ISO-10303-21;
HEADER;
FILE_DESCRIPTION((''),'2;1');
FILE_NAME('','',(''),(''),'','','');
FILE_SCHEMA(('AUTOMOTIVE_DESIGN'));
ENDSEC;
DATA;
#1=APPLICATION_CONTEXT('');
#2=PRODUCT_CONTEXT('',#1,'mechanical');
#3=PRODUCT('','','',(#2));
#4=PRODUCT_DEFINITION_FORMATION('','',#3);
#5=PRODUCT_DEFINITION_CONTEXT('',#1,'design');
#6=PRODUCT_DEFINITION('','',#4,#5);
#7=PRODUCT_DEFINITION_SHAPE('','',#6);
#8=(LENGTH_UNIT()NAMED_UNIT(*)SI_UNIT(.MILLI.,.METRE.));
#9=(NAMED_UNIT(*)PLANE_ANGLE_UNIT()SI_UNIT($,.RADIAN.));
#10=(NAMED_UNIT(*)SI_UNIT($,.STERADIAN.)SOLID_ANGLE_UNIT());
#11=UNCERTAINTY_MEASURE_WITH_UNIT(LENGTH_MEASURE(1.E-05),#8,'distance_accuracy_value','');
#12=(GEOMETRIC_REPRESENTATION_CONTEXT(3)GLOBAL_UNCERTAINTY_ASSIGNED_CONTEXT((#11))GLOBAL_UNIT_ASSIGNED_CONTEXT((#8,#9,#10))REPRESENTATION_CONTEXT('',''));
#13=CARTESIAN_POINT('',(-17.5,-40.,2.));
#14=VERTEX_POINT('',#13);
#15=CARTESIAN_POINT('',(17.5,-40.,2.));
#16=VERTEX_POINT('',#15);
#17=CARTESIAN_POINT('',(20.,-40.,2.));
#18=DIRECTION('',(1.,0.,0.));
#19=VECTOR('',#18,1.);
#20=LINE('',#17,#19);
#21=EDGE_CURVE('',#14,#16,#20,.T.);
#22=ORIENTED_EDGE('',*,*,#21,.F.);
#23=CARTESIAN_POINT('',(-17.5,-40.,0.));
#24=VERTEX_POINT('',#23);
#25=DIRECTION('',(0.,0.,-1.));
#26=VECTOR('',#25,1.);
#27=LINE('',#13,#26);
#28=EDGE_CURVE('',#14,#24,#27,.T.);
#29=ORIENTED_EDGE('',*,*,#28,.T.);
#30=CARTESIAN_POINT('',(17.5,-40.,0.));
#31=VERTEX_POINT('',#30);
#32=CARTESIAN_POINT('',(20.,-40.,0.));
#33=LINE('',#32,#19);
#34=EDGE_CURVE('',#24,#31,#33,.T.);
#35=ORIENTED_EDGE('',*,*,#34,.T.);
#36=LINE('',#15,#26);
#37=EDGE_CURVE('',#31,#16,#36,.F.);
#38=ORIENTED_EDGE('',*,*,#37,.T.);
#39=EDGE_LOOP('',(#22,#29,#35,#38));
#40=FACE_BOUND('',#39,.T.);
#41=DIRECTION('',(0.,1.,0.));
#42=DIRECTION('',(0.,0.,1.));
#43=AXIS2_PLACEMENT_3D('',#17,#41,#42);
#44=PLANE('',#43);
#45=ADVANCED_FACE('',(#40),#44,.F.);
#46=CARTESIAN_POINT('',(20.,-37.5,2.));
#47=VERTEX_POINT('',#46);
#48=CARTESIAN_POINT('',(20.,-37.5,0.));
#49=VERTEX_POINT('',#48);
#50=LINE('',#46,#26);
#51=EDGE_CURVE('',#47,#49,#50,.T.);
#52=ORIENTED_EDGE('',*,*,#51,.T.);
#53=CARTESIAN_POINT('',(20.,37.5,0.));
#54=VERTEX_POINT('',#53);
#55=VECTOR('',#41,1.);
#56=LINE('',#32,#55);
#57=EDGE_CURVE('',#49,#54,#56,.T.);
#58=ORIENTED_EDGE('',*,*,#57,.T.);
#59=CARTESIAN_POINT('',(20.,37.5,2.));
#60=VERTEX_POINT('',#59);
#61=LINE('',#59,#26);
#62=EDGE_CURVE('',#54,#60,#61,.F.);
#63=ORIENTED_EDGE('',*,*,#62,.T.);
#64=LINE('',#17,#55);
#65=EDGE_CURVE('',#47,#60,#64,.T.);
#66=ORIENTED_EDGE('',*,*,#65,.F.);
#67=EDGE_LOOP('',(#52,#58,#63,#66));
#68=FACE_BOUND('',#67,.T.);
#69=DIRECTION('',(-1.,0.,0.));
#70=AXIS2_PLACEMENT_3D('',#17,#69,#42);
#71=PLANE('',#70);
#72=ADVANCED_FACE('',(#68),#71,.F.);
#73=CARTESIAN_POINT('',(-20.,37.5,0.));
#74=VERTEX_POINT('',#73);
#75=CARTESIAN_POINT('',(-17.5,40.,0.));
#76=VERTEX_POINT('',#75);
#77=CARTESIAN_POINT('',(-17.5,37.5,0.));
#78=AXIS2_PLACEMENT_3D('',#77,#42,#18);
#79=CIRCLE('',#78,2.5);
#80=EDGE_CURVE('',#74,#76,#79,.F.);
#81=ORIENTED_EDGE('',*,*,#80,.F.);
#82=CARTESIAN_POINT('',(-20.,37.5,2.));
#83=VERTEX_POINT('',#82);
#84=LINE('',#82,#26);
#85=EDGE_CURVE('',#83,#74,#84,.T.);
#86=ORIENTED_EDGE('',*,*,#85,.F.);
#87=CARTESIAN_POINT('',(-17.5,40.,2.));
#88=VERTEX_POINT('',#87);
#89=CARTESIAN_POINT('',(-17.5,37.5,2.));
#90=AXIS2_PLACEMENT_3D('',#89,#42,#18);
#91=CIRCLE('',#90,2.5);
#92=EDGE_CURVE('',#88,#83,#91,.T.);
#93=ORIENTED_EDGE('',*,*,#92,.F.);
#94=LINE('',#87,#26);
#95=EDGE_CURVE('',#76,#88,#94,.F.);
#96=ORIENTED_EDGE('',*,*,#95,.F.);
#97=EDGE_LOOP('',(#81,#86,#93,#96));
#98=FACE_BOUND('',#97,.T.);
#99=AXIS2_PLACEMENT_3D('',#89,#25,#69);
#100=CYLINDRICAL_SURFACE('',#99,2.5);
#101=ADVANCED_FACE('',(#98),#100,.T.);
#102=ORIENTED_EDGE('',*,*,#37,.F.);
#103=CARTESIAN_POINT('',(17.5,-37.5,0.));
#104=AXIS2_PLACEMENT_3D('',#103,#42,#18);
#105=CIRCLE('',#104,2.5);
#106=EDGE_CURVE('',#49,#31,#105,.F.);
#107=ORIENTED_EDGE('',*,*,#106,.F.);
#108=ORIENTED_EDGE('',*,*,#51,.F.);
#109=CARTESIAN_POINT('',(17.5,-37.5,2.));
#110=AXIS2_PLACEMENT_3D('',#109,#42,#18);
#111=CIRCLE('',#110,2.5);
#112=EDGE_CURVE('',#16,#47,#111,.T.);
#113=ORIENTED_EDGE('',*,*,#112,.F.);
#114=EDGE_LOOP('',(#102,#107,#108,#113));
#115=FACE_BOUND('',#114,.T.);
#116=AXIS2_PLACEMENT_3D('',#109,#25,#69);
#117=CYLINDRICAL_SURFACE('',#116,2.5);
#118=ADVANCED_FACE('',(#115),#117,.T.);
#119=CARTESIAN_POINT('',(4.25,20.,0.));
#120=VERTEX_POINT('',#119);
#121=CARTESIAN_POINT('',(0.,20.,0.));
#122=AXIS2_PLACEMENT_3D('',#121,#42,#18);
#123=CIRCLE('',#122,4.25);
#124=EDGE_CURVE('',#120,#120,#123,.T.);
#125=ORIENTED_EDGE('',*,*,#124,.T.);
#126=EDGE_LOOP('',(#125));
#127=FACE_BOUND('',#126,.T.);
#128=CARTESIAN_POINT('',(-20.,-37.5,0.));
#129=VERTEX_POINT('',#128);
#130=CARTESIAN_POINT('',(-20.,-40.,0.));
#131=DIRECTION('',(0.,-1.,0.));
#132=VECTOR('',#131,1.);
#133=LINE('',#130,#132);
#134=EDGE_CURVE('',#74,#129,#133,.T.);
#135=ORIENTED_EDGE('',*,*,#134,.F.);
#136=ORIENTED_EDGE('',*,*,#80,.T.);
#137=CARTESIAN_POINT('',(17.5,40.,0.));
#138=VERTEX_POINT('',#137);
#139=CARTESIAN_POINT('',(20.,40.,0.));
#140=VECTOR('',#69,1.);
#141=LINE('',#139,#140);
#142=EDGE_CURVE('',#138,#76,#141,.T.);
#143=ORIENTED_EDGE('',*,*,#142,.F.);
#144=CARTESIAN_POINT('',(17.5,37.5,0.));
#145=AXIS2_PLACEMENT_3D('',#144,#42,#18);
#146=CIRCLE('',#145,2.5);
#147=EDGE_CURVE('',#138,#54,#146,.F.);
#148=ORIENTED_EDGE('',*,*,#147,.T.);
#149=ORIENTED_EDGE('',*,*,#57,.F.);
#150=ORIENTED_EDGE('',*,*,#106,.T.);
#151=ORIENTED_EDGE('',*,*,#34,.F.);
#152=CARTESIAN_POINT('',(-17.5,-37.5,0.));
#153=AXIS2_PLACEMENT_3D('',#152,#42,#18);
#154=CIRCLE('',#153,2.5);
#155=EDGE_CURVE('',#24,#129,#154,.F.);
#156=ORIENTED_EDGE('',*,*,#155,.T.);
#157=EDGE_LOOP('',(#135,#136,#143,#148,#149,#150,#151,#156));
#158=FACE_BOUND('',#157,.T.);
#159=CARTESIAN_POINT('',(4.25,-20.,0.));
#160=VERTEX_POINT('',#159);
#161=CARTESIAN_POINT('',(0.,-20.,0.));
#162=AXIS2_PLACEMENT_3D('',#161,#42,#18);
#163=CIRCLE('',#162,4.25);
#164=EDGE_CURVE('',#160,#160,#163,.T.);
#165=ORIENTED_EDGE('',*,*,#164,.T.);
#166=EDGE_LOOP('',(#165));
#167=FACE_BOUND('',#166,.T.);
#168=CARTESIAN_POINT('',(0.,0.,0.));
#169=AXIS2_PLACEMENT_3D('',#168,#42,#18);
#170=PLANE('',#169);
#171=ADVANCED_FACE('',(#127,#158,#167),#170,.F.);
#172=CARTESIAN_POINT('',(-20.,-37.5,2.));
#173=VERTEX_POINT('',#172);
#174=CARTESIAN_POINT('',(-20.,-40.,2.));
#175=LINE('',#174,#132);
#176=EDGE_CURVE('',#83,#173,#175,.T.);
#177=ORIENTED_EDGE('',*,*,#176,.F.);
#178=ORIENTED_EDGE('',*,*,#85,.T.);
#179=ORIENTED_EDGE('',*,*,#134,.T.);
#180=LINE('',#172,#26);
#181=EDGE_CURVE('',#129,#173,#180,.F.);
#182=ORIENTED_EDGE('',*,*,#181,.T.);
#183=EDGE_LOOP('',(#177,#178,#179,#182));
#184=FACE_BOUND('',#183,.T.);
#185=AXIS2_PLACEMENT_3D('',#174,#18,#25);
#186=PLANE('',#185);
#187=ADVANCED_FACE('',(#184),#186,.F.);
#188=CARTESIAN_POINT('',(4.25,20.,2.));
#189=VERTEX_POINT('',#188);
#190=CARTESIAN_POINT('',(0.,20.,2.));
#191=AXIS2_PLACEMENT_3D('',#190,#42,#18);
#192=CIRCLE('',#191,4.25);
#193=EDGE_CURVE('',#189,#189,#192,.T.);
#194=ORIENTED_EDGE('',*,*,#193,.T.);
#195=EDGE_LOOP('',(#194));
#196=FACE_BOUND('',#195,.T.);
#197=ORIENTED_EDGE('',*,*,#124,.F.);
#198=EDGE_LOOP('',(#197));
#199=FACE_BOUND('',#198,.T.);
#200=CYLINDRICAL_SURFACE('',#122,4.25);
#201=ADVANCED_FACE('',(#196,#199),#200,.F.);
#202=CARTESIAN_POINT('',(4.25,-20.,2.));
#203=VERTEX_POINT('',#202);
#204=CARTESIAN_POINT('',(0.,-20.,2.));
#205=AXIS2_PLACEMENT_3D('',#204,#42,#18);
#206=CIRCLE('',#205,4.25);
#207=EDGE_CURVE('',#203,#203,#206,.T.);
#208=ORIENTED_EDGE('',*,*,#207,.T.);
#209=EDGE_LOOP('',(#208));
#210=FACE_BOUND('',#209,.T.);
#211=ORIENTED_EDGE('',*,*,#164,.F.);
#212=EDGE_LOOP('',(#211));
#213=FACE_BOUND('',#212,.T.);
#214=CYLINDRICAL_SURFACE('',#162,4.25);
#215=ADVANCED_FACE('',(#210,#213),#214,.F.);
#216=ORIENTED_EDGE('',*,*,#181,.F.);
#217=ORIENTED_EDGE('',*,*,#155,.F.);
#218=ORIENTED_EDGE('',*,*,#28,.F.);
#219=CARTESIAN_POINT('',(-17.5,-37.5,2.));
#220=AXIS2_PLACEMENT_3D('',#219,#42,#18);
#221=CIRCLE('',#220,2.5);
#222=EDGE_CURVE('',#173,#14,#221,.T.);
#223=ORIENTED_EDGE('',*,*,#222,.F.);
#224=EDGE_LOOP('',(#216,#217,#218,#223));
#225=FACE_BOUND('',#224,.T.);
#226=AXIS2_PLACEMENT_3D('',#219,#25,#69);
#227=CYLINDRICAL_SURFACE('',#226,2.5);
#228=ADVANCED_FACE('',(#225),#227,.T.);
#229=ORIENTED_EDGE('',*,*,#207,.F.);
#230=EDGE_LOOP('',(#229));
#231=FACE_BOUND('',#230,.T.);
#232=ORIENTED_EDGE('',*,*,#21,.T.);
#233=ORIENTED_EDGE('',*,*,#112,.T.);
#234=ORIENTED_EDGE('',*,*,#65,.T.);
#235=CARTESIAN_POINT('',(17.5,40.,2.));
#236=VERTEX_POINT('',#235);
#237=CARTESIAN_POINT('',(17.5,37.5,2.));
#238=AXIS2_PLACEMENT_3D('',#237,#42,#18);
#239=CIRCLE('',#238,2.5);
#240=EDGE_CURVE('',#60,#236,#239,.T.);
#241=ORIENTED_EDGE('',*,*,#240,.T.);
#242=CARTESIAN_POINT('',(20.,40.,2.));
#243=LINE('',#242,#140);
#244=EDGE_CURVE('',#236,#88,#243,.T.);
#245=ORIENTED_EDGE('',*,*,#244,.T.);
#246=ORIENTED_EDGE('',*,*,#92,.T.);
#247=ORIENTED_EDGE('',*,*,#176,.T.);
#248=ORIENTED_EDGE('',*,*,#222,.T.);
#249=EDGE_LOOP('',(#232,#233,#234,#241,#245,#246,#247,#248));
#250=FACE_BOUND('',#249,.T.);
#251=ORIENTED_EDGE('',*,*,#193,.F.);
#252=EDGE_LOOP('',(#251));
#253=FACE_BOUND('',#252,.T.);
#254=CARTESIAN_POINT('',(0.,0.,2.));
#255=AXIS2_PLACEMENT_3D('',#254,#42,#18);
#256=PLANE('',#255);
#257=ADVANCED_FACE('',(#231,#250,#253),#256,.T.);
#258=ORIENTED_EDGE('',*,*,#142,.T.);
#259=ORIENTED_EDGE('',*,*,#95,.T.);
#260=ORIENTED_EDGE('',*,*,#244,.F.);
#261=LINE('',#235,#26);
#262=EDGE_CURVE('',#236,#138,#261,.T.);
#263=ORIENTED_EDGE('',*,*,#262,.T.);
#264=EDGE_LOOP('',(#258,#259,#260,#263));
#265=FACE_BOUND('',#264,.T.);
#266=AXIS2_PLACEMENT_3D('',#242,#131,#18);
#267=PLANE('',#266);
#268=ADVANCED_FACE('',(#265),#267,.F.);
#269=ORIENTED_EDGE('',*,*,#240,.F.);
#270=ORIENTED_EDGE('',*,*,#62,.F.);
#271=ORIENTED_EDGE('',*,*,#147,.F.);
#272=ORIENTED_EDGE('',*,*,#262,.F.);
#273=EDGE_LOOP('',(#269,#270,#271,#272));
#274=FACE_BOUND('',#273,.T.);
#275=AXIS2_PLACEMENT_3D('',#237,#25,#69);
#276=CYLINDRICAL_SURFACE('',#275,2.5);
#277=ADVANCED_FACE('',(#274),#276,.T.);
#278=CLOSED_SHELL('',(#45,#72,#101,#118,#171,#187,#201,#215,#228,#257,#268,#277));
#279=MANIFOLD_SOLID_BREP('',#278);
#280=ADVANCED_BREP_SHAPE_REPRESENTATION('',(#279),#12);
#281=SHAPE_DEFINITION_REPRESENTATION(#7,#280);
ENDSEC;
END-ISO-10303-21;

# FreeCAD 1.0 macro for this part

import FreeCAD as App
import Part
import Sketcher
Q = App.Units.Quantity


def edges_at(feature, points):
    """Names of the edges that pass closest to the given points."""
    edges = feature.Shape.Edges
    near = lambda p: min(range(len(edges)), key=lambda i: edges[i].distToShape(Part.Vertex(*p))[0])
    return sorted({f"Edge{near(p) + 1}" for p in points})


def add_polygon(sketch, points):
    """Adds a closed chain of lines whose ends are joined by coincident constraints."""
    first, n = sketch.GeometryCount, len(points)
    for a, b in zip(points, points[1:] + points[:1]):
        sketch.addGeometry(Part.LineSegment(App.Vector(*a, 0), App.Vector(*b, 0)), False)
    for i in range(n):
        sketch.addConstraint(Sketcher.Constraint("Coincident", first + i, 2, first + (i + 1) % n, 1))

doc = App.newDocument("Part")
body = doc.addObject("PartDesign::Body", "Body")

sketch1 = doc.addObject("Sketcher::SketchObject", "Sketch")
body.addObject(sketch1)
sketch1.AttachmentSupport = (doc.XY_Plane, [""])
sketch1.MapMode = "FlatFace"
add_polygon(sketch1, [(-20, 40), (-20, -40), (20, -40), (20, 40)])
sketch1.addConstraint([
    Sketcher.Constraint("Vertical", 0),
    Sketcher.Constraint("Horizontal", 1),
    Sketcher.Constraint("Vertical", 2),
    Sketcher.Constraint("Horizontal", 3),
    Sketcher.Constraint("Symmetric", 0, 2, 2, 2, -1, 1),
    Sketcher.Constraint("DistanceX", 1, 1, 1, 2, Q("40 mm")),
    Sketcher.Constraint("DistanceY", 0, 2, 0, 1, Q("80 mm")),
])
pad1 = doc.addObject("PartDesign::Pad", "Pad")
body.addObject(pad1)
pad1.Profile = sketch1
pad1.Length = 2

sketch2 = doc.addObject("Sketcher::SketchObject", "Sketch001")
body.addObject(sketch2)
sketch2.AttachmentSupport = (doc.XY_Plane, [""])
sketch2.MapMode = "FlatFace"
sketch2.AttachmentOffset = App.Placement(App.Vector(0, 0, 2), App.Rotation())
sketch2.addGeometry([
    Part.Circle(App.Vector(0, 20, 0), App.Vector(0, 0, 1), 4.2),
    Part.Circle(App.Vector(0, -20, 0), App.Vector(0, 0, 1), 4.2),
], False)
sketch2.addConstraint([
    Sketcher.Constraint("Equal", 0, 1),
    Sketcher.Constraint("Symmetric", 0, 3, 1, 3, -1, 1),
    Sketcher.Constraint("PointOnObject", 0, 3, -2),
    Sketcher.Constraint("Diameter", 0, Q("8.5 mm")),
    Sketcher.Constraint("DistanceY", -1, 1, 0, 3, Q("20 mm")),
])
pocket1 = doc.addObject("PartDesign::Pocket", "Pocket")
body.addObject(pocket1)
pocket1.Profile = sketch2
pocket1.Length = 2
doc.recompute()

fillet = doc.addObject("PartDesign::Fillet", "Fillet")
body.addObject(fillet)
fillet.Base = (pocket1, edges_at(pocket1, [
    (-20, 40, 1),
    (20, 40, 1),
    (20, -40, 1),
    (-20, -40, 1),
]))
fillet.Radius = 2.5

doc.recompute()
